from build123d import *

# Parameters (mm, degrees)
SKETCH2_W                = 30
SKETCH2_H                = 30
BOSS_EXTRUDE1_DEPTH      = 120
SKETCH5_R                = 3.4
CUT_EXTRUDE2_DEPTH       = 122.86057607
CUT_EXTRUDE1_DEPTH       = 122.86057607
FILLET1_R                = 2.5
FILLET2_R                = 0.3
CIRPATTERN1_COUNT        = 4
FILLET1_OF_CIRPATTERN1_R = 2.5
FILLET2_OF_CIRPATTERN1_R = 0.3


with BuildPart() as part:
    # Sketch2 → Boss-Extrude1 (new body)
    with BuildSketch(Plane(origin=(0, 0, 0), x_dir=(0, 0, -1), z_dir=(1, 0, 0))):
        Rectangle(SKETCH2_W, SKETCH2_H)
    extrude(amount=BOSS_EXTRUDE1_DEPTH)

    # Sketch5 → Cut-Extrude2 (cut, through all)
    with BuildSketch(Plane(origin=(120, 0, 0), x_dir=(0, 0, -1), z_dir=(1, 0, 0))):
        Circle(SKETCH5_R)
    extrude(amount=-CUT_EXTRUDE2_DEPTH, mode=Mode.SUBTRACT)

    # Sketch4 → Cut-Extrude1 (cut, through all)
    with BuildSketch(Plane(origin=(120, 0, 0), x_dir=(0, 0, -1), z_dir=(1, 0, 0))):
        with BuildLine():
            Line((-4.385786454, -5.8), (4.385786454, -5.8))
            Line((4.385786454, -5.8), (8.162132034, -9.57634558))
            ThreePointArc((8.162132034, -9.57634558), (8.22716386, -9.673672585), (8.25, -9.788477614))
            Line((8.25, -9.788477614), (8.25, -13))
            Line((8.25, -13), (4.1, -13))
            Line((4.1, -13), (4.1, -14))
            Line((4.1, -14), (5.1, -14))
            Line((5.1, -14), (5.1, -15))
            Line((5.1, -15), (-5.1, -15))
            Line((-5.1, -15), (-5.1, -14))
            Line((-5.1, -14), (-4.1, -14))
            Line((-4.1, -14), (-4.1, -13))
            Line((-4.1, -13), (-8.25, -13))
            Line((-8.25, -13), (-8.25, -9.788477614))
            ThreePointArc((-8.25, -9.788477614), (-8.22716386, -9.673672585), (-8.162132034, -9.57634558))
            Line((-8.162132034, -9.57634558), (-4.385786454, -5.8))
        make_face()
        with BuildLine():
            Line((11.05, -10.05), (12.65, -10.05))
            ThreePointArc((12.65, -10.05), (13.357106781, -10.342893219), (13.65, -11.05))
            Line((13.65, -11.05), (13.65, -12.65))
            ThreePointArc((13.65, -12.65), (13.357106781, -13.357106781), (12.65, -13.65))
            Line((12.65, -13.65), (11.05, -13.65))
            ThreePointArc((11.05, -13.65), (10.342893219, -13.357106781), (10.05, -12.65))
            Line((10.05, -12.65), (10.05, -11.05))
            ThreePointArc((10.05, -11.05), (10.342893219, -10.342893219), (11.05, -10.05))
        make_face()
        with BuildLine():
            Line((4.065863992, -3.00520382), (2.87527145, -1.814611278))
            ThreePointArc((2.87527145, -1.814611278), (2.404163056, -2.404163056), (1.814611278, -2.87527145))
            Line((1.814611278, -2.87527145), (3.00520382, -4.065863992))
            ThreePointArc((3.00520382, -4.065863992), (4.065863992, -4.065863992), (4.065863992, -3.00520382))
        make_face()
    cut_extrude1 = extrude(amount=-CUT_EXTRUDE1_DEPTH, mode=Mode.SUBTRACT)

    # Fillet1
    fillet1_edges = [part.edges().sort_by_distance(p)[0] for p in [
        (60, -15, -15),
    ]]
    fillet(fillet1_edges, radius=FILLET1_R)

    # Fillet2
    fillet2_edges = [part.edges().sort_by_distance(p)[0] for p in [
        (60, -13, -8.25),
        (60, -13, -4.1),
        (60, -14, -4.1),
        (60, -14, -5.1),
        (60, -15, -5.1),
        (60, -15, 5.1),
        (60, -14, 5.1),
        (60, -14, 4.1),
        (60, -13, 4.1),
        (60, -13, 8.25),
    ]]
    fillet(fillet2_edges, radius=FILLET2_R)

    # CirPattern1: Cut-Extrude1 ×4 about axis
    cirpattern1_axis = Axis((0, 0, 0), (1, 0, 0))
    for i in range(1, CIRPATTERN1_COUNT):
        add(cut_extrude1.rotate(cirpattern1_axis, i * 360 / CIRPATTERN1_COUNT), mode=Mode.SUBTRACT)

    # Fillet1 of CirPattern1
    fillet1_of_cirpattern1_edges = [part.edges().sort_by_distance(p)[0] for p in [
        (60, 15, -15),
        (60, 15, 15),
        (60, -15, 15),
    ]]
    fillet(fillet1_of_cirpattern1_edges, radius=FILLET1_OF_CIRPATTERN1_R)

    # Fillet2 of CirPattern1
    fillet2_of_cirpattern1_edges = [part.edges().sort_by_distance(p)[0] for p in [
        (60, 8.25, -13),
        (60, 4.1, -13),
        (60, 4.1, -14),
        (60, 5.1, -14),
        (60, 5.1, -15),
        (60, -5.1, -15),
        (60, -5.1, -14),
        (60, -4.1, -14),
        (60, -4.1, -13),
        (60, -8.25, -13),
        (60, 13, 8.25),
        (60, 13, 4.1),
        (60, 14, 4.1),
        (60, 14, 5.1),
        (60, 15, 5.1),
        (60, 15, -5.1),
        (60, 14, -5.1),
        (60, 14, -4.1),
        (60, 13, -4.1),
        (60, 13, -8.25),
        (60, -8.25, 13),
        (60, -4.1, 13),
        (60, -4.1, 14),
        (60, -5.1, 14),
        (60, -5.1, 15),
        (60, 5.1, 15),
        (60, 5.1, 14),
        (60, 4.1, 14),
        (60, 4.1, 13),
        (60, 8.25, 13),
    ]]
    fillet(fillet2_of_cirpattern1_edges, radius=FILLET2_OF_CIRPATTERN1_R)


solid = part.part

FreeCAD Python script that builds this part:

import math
import FreeCAD as App
import Part
import Sketcher

V = App.Vector
Q = App.Units.Quantity


def edges_at(feature, points):
    """Names of the edges that pass closest to the given points."""
    edges = feature.Shape.Edges
    near = lambda p: min(range(len(edges)), key=lambda i: edges[i].distToShape(Part.Vertex(*p))[0])
    return sorted({f"Edge{near(p) + 1}" for p in points})

doc = App.newDocument("Part")
body = doc.addObject("PartDesign::Body", "Body")

# Sketch on YZ plane
sketch1 = body.newObject("Sketcher::SketchObject", "Sketch")
sketch1.AttachmentSupport = (doc.getObject("YZ_Plane"), [""])
sketch1.MapMode = "FlatFace"
sketch1.addGeometry(Part.LineSegment(V(15, 15, 0), V(-15, 15, 0)), False)
sketch1.addGeometry(Part.LineSegment(V(-15, 15, 0), V(-15, -15, 0)), False)
sketch1.addGeometry(Part.LineSegment(V(-15, -15, 0), V(15, -15, 0)), False)
sketch1.addGeometry(Part.LineSegment(V(15, -15, 0), V(15, 15, 0)), False)
sketch1.addConstraint(Sketcher.Constraint("Coincident", 0, 2, 1, 1))
sketch1.addConstraint(Sketcher.Constraint("Coincident", 1, 2, 2, 1))
sketch1.addConstraint(Sketcher.Constraint("Coincident", 2, 2, 3, 1))
sketch1.addConstraint(Sketcher.Constraint("Coincident", 3, 2, 0, 1))
sketch1.addConstraint(Sketcher.Constraint("Horizontal", 0))
sketch1.addConstraint(Sketcher.Constraint("Vertical", 1))
sketch1.addConstraint(Sketcher.Constraint("Horizontal", 2))
sketch1.addConstraint(Sketcher.Constraint("Vertical", 3))
sketch1.addConstraint(Sketcher.Constraint("Symmetric", 0, 2, 2, 2, -1, 1))
sketch1.addConstraint(Sketcher.Constraint("Equal", 2, 1))
sketch1.addConstraint(Sketcher.Constraint("DistanceX", 0, 2, 0, 1, Q("30 mm")))
pad1 = body.newObject("PartDesign::Pad", "Pad")
pad1.Profile = sketch1
pad1.Length = 120

# Sketch on YZ plane
sketch2 = body.newObject("Sketcher::SketchObject", "Sketch001")
sketch2.AttachmentSupport = (doc.getObject("YZ_Plane"), [""])
sketch2.MapMode = "FlatFace"
sketch2.AttachmentOffset = App.Placement(V(0, 0, 120), App.Rotation())
sketch2.addGeometry(Part.Circle(V(0, 0, 0), V(0, 0, 1), 3.4), False)
sketch2.addConstraint(Sketcher.Constraint("Coincident", 0, 3, -1, 1))
sketch2.addConstraint(Sketcher.Constraint("Diameter", 0, Q("6.8 mm")))
pocket1 = body.newObject("PartDesign::Pocket", "Pocket")
pocket1.Profile = sketch2
pocket1.Type = "ThroughAll"

# Sketch on YZ plane
sketch3 = body.newObject("Sketcher::SketchObject", "Sketch002")
sketch3.AttachmentSupport = (doc.getObject("YZ_Plane"), [""])
sketch3.MapMode = "FlatFace"
sketch3.AttachmentOffset = App.Placement(V(0, 0, 120), App.Rotation())
sketch3.addGeometry(Part.LineSegment(V(-5.8, -4.39, 0), V(-5.8, 4.39, 0)), False)
sketch3.addGeometry(Part.LineSegment(V(-5.8, 4.39, 0), V(-9.58, 8.16, 0)), False)
sketch3.addGeometry(Part.ArcOfCircle(Part.Circle(V(-9.79, 7.95, 0), V(0, 0, 1), 0.3), math.radians(45), math.radians(90)), False)
sketch3.addGeometry(Part.LineSegment(V(-9.79, 8.25, 0), V(-13, 8.25, 0)), False)
sketch3.addGeometry(Part.LineSegment(V(-13, 8.25, 0), V(-13, 4.1, 0)), False)
sketch3.addGeometry(Part.LineSegment(V(-13, 4.1, 0), V(-14, 4.1, 0)), False)
sketch3.addGeometry(Part.LineSegment(V(-14, 4.1, 0), V(-14, 5.1, 0)), False)
sketch3.addGeometry(Part.LineSegment(V(-14, 5.1, 0), V(-15, 5.1, 0)), False)
sketch3.addGeometry(Part.LineSegment(V(-15, 5.1, 0), V(-15, -5.1, 0)), False)
sketch3.addGeometry(Part.LineSegment(V(-15, -5.1, 0), V(-14, -5.1, 0)), False)
sketch3.addGeometry(Part.LineSegment(V(-14, -5.1, 0), V(-14, -4.1, 0)), False)
sketch3.addGeometry(Part.LineSegment(V(-14, -4.1, 0), V(-13, -4.1, 0)), False)
sketch3.addGeometry(Part.LineSegment(V(-13, -4.1, 0), V(-13, -8.25, 0)), False)
sketch3.addGeometry(Part.LineSegment(V(-13, -8.25, 0), V(-9.79, -8.25, 0)), False)
sketch3.addGeometry(Part.ArcOfCircle(Part.Circle(V(-9.79, -7.95, 0), V(0, 0, 1), 0.3), math.radians(-90), math.radians(-45)), False)
sketch3.addGeometry(Part.LineSegment(V(-9.58, -8.16, 0), V(-5.8, -4.39, 0)), False)
sketch3.addGeometry(Part.LineSegment(V(-10.05, -12.65, 0), V(-10.05, -11.05, 0)), False)
sketch3.addGeometry(Part.ArcOfCircle(Part.Circle(V(-11.05, -11.05, 0), V(0, 0, 1), 1), math.radians(0), math.radians(90)), False)
sketch3.addGeometry(Part.LineSegment(V(-11.05, -10.05, 0), V(-12.65, -10.05, 0)), False)
sketch3.addGeometry(Part.ArcOfCircle(Part.Circle(V(-12.65, -11.05, 0), V(0, 0, 1), 1), math.radians(90), math.radians(180)), False)
sketch3.addGeometry(Part.LineSegment(V(-13.65, -11.05, 0), V(-13.65, -12.65, 0)), False)
sketch3.addGeometry(Part.ArcOfCircle(Part.Circle(V(-12.65, -12.65, 0), V(0, 0, 1), 1), math.radians(-180), math.radians(-90)), False)
sketch3.addGeometry(Part.LineSegment(V(-12.65, -13.65, 0), V(-11.05, -13.65, 0)), False)
sketch3.addGeometry(Part.ArcOfCircle(Part.Circle(V(-11.05, -12.65, 0), V(0, 0, 1), 1), math.radians(-90), math.radians(0)), False)
sketch3.addGeometry(Part.LineSegment(V(-3.01, -4.07, 0), V(-1.81, -2.88, 0)), False)
sketch3.addGeometry(Part.ArcOfCircle(Part.Circle(V(0, 0, 0), V(0, 0, 1), 3.4), math.radians(-148), math.radians(-122)), False)
sketch3.addGeometry(Part.LineSegment(V(-2.88, -1.81, 0), V(-4.07, -3.01, 0)), False)
sketch3.addGeometry(Part.ArcOfCircle(Part.Circle(V(-3.54, -3.54, 0), V(0, 0, 1), 0.75), math.radians(135), math.radians(315)), False)
sketch3.addConstraint(Sketcher.Constraint("Coincident", 0, 2, 1, 1))
sketch3.addConstraint(Sketcher.Constraint("Tangent", 1, 2, 2, 1))
sketch3.addConstraint(Sketcher.Constraint("Tangent", 2, 2, 3, 1))
sketch3.addConstraint(Sketcher.Constraint("Coincident", 3, 2, 4, 1))
sketch3.addConstraint(Sketcher.Constraint("Coincident", 4, 2, 5, 1))
sketch3.addConstraint(Sketcher.Constraint("Coincident", 5, 2, 6, 1))
sketch3.addConstraint(Sketcher.Constraint("Coincident", 6, 2, 7, 1))
sketch3.addConstraint(Sketcher.Constraint("Coincident", 7, 2, 8, 1))
sketch3.addConstraint(Sketcher.Constraint("Coincident", 8, 2, 9, 1))
sketch3.addConstraint(Sketcher.Constraint("Coincident", 9, 2, 10, 1))
sketch3.addConstraint(Sketcher.Constraint("Coincident", 10, 2, 11, 1))
sketch3.addConstraint(Sketcher.Constraint("Coincident", 11, 2, 12, 1))
sketch3.addConstraint(Sketcher.Constraint("Coincident", 12, 2, 13, 1))
sketch3.addConstraint(Sketcher.Constraint("Tangent", 13, 2, 14, 1))
sketch3.addConstraint(Sketcher.Constraint("Tangent", 14, 2, 15, 1))
sketch3.addConstraint(Sketcher.Constraint("Coincident", 15, 2, 0, 1))
sketch3.addConstraint(Sketcher.Constraint("Tangent", 16, 2, 17, 1))
sketch3.addConstraint(Sketcher.Constraint("Tangent", 17, 2, 18, 1))
sketch3.addConstraint(Sketcher.Constraint("Tangent", 18, 2, 19, 1))
sketch3.addConstraint(Sketcher.Constraint("Tangent", 19, 2, 20, 1))
sketch3.addConstraint(Sketcher.Constraint("Tangent", 20, 2, 21, 1))
sketch3.addConstraint(Sketcher.Constraint("Tangent", 21, 2, 22, 1))
sketch3.addConstraint(Sketcher.Constraint("Tangent", 22, 2, 23, 1))
sketch3.addConstraint(Sketcher.Constraint("Tangent", 23, 2, 16, 1))
sketch3.addConstraint(Sketcher.Constraint("Coincident", 24, 2, 25, 2))
sketch3.addConstraint(Sketcher.Constraint("Coincident", 25, 1, 26, 1))
sketch3.addConstraint(Sketcher.Constraint("Tangent", 26, 2, 27, 1))
sketch3.addConstraint(Sketcher.Constraint("Tangent", 27, 2, 24, 1))
sketch3.addConstraint(Sketcher.Constraint("Vertical", 0))
sketch3.addConstraint(Sketcher.Constraint("Horizontal", 3))
sketch3.addConstraint(Sketcher.Constraint("Vertical", 4))
sketch3.addConstraint(Sketcher.Constraint("Horizontal", 5))
sketch3.addConstraint(Sketcher.Constraint("Vertical", 6))
sketch3.addConstraint(Sketcher.Constraint("Horizontal", 7))
sketch3.addConstraint(Sketcher.Constraint("Vertical", 8))
sketch3.addConstraint(Sketcher.Constraint("Horizontal", 9))
sketch3.addConstraint(Sketcher.Constraint("Vertical", 10))
sketch3.addConstraint(Sketcher.Constraint("Horizontal", 11))
sketch3.addConstraint(Sketcher.Constraint("Vertical", 12))
sketch3.addConstraint(Sketcher.Constraint("Horizontal", 13))
sketch3.addConstraint(Sketcher.Constraint("Vertical", 16))
sketch3.addConstraint(Sketcher.Constraint("Horizontal", 18))
sketch3.addConstraint(Sketcher.Constraint("Vertical", 20))
sketch3.addConstraint(Sketcher.Constraint("Horizontal", 22))
sketch3.addConstraint(Sketcher.Constraint("Coincident", 25, 3, -1, 1))
sketch3.addConstraint(Sketcher.Constraint("Equal", 2, 14))
sketch3.addConstraint(Sketcher.Constraint("Equal", 17, 19))
sketch3.addConstraint(Sketcher.Constraint("Equal", 19, 21))
sketch3.addConstraint(Sketcher.Constraint("Equal", 21, 23))
sketch3.addConstraint(Sketcher.Constraint("Symmetric", 2, 3, 14, 3, -1))
sketch3.addConstraint(Sketcher.Constraint("Symmetric", 6, 2, 9, 2, -1))
sketch3.addConstraint(Sketcher.Constraint("Symmetric", 4, 2, 11, 2, -1))
sketch3.addConstraint(Sketcher.Constraint("Perpendicular", 1, 15))
sketch3.addConstraint(Sketcher.Constraint("Parallel", 15, 24))
sketch3.addConstraint(Sketcher.Constraint("Parallel", 24, 26))
sketch3.addConstraint(Sketcher.Constraint("Vertical", 1, 2, 14, 2))
sketch3.addConstraint(Sketcher.Constraint("Equal", 5, 7))
sketch3.addConstraint(Sketcher.Constraint("Equal", 11, 6))
sketch3.addConstraint(Sketcher.Constraint("Equal", 22, 16))
sketch3.addConstraint(Sketcher.Constraint("Equal", 24, 26))
sketch3.addConstraint(Sketcher.Constraint("Radius", 17, Q("1 mm")))
sketch3.addConstraint(Sketcher.Constraint("Radius", 2, Q("0.3 mm")))
sketch3.addConstraint(Sketcher.Constraint("Radius", 25, Q("3.4 mm")))
sketch3.addConstraint(Sketcher.Constraint("DistanceX", 5, 2, 5, 1, Q("1 mm")))
sketch3.addConstraint(Sketcher.Constraint("Radius", 27, Q("0.75 mm")))
sketch3.addConstraint(Sketcher.Constraint("DistanceX", 18, 2, 18, 1, Q("1.6 mm")))
sketch3.addConstraint(Sketcher.Constraint("DistanceY", 8, 2, 8, 1, Q("10.2 mm")))
sketch3.addConstraint(Sketcher.Constraint("DistanceX", 3, 2, -1, 1, Q("13 mm")))
sketch3.addConstraint(Sketcher.Constraint("DistanceY", 17, 3, 2, 3, Q("19 mm")))
sketch3.addConstraint(Sketcher.Constraint("DistanceY", 4, 2, 4, 1, Q("4.15 mm")))
sketch3.addConstraint(Sketcher.Constraint("DistanceX", 0, 2, -1, 1, Q("5.8 mm")))
sketch3.addConstraint(Sketcher.Constraint("DistanceX", 17, 3, -1, 1, Q("11.05 mm")))
sketch3.addConstraint(Sketcher.Constraint("Distance", 1, Q("5.340559 mm")))
sketch3.addConstraint(Sketcher.Constraint("DistanceY", 27, 3, 0, 2, Q("7.92132 mm")))
pocket2 = body.newObject("PartDesign::Pocket", "Pocket001")
pocket2.Profile = sketch3
pocket2.Type = "ThroughAll"
doc.recompute()

fillet = body.newObject("PartDesign::Fillet", "Fillet")
fillet.Base = (pocket2, edges_at(pocket2, [(60, -15, -15)]))
fillet.Radius = 2.5
doc.recompute()

fillet2 = body.newObject("PartDesign::Fillet", "Fillet001")
fillet2.Base = (fillet, edges_at(fillet, [
    (60, -13, -8.25),
    (60, -13, -4.1),
    (60, -14, -4.1),
    (60, -14, -5.1),
    (60, -15, -5.1),
    (60, -15, 5.1),
    (60, -14, 5.1),
    (60, -14, 4.1),
    (60, -13, 4.1),
    (60, -13, 8.25),
]))
fillet2.Radius = 0.3
doc.recompute()

polarpattern = body.newObject("PartDesign::PolarPattern", "PolarPattern")
polarpattern.Originals = [pocket2]
polarpattern.Axis = (doc.getObject("X_Axis"), [""])
polarpattern.Angle = 360
polarpattern.Occurrences = 4
body.Tip = polarpattern
doc.recompute()

fillet3 = body.newObject("PartDesign::Fillet", "Fillet002")
fillet3.Base = (polarpattern, edges_at(polarpattern, [(60, 15, -15), (60, 15, 15), (60, -15, 15)]))
fillet3.Radius = 2.5
doc.recompute()

fillet4 = body.newObject("PartDesign::Fillet", "Fillet003")
fillet4.Base = (fillet3, edges_at(fillet3, [
    (60, 8.25, -13),
    (60, 4.1, -13),
    (60, 4.1, -14),
    (60, 5.1, -14),
    (60, 5.1, -15),
    (60, -5.1, -15),
    (60, -5.1, -14),
    (60, -4.1, -14),
    (60, -4.1, -13),
    (60, -8.25, -13),
    (60, 13, 8.25),
    (60, 13, 4.1),
    (60, 14, 4.1),
    (60, 14, 5.1),
    (60, 15, 5.1),
    (60, 15, -5.1),
    (60, 14, -5.1),
    (60, 14, -4.1),
    (60, 13, -4.1),
    (60, 13, -8.25),
    (60, -8.25, 13),
    (60, -4.1, 13),
    (60, -4.1, 14),
    (60, -5.1, 14),
    (60, -5.1, 15),
    (60, 5.1, 15),
    (60, 5.1, 14),
    (60, 4.1, 14),
    (60, 4.1, 13),
    (60, 8.25, 13),
]))
fillet4.Radius = 0.3

doc.recompute()
